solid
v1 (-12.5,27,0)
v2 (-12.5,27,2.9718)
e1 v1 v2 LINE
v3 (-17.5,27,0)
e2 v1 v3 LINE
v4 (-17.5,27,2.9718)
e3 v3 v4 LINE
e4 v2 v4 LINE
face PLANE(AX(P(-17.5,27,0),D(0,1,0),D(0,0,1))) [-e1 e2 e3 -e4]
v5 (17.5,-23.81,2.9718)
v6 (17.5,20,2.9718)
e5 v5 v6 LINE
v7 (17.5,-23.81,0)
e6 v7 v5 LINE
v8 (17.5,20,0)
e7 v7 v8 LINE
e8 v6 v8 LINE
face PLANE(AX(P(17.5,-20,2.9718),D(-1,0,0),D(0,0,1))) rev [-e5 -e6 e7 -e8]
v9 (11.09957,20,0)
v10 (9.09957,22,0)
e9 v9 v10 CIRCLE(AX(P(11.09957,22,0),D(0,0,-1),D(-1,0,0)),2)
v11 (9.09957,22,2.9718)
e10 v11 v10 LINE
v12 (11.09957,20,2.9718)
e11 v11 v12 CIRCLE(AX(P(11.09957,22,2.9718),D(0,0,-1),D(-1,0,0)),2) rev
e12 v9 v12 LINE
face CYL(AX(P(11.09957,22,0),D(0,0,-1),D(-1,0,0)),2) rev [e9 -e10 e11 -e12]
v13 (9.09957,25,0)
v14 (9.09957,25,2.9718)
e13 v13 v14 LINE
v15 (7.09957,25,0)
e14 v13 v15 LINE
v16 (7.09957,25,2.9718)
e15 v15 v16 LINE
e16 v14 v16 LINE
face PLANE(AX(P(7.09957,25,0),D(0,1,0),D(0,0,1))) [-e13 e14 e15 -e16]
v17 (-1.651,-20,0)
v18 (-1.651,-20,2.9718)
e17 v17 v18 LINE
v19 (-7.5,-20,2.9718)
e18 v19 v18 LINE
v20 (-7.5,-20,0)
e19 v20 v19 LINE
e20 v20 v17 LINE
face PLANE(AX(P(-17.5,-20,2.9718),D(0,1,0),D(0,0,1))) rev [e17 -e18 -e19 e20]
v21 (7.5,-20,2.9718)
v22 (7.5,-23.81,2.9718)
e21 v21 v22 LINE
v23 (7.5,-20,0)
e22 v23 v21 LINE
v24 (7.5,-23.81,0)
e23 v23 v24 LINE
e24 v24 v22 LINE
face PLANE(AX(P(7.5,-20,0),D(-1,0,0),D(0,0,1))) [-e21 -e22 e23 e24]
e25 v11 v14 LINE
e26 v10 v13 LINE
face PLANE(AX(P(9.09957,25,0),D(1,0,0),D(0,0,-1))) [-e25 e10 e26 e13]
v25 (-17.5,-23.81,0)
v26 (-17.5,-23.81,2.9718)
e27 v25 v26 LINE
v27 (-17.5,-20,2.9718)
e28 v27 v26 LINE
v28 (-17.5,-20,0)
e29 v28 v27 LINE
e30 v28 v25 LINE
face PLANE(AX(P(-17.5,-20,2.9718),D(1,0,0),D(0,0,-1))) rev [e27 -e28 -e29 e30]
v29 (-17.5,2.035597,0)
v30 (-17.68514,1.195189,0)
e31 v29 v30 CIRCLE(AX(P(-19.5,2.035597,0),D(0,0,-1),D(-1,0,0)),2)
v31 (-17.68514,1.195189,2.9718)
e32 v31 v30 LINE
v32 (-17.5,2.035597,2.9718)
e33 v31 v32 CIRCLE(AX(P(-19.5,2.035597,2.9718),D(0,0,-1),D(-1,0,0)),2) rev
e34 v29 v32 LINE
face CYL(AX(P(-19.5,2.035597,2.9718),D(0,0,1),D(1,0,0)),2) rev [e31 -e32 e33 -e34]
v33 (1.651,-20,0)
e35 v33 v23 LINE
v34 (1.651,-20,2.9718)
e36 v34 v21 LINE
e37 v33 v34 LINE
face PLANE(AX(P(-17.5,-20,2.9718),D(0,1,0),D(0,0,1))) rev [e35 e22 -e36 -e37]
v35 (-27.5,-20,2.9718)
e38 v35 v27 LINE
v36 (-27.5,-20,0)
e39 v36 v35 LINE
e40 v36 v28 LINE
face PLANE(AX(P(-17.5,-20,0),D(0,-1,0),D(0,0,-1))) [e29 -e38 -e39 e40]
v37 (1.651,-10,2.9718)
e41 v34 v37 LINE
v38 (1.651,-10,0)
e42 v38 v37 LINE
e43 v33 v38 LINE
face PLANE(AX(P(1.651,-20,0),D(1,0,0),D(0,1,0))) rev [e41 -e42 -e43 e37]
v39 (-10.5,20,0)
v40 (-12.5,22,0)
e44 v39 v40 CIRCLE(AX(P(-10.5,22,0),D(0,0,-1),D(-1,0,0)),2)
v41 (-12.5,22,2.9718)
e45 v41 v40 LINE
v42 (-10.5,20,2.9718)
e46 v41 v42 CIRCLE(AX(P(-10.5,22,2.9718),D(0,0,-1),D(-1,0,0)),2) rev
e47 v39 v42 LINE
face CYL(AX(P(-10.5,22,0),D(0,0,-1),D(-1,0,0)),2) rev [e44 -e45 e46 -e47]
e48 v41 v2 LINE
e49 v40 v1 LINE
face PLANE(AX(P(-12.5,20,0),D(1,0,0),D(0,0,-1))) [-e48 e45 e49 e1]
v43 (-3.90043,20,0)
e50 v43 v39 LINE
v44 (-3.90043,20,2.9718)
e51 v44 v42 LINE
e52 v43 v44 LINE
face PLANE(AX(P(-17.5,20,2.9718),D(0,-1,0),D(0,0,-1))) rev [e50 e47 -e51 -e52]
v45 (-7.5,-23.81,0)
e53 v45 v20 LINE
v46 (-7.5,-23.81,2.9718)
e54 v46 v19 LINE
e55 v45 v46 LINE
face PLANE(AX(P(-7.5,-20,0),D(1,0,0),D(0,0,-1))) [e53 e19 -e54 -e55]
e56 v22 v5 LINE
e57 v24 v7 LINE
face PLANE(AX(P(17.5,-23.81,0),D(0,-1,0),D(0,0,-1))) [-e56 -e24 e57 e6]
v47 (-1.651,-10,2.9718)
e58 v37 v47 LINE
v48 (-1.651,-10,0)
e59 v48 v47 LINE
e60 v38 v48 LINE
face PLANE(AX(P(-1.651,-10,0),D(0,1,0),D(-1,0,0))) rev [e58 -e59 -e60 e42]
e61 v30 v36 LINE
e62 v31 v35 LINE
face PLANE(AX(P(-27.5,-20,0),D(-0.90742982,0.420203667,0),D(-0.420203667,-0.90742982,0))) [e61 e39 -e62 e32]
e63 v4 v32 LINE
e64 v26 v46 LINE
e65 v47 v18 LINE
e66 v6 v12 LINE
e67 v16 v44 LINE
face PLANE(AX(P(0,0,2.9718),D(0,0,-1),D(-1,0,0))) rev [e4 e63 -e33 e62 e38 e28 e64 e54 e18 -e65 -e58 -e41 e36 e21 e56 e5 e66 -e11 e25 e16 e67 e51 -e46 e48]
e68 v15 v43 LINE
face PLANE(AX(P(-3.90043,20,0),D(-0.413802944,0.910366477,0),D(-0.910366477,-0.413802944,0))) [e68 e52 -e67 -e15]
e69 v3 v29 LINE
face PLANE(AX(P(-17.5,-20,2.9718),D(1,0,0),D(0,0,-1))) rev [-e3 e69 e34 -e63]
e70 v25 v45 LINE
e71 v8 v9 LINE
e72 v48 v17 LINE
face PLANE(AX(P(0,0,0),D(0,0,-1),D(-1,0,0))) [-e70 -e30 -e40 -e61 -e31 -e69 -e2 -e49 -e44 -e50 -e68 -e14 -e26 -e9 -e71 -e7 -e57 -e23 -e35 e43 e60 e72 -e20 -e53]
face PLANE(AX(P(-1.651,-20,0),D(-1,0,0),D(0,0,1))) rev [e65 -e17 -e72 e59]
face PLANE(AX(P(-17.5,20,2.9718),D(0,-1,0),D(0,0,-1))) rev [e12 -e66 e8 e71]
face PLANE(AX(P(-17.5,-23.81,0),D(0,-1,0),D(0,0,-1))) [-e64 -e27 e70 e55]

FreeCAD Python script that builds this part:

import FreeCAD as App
import Part
import Sketcher
Q = App.Units.Quantity


def edges_at(feature, points):
    """Names of the edges that pass closest to the given points."""
    edges = feature.Shape.Edges
    near = lambda p: min(range(len(edges)), key=lambda i: edges[i].distToShape(Part.Vertex(*p))[0])
    return sorted({f"Edge{near(p) + 1}" for p in points})


def add_polygon(sketch, points):
    """Adds a closed chain of lines whose ends are joined by coincident constraints."""
    first, n = sketch.GeometryCount, len(points)
    for a, b in zip(points, points[1:] + points[:1]):
        sketch.addGeometry(Part.LineSegment(App.Vector(*a, 0), App.Vector(*b, 0)), False)
    for i in range(n):
        sketch.addConstraint(Sketcher.Constraint("Coincident", first + i, 2, first + (i + 1) % n, 1))

doc = App.newDocument("Part")
body = doc.addObject("PartDesign::Body", "Body")

sketch1 = doc.addObject("Sketcher::SketchObject", "Sketch")
body.addObject(sketch1)
sketch1.AttachmentSupport = (doc.XY_Plane, [""])
sketch1.MapMode = "FlatFace"
add_polygon(sketch1, [(-18, 20), (-18, -20), (18, -20), (18, 20)])
sketch1.addConstraint(Sketcher.Constraint("Vertical", 0))
sketch1.addConstraint(Sketcher.Constraint("Horizontal", 1))
sketch1.addConstraint(Sketcher.Constraint("Vertical", 2))
sketch1.addConstraint(Sketcher.Constraint("Horizontal", 3))
sketch1.addConstraint(Sketcher.Constraint("Symmetric", 0, 2, 2, 2, -1, 1))
sketch1.addConstraint(Sketcher.Constraint("DistanceX", 1, 1, 1, 2, Q("35 mm")))
sketch1.addConstraint(Sketcher.Constraint("DistanceY", 0, 2, 0, 1, Q("40 mm")))
pad1 = doc.addObject("PartDesign::Pad", "Pad")
body.addObject(pad1)
pad1.Profile = sketch1
pad1.Length = 2.9718

sketch2 = doc.addObject("Sketcher::SketchObject", "Sketch001")
body.addObject(sketch2)
sketch2.AttachmentSupport = (doc.XY_Plane, [""])
sketch2.MapMode = "FlatFace"
sketch2.AttachmentOffset = App.Placement(App.Vector(0, 0, 2.9718), App.Rotation())
add_polygon(sketch2, [(7.1, 25), (-3.9, 20), (9.1, 20), (9.1, 25)])
add_polygon(sketch2, [(-17.5, 27), (-17.5, 20), (-12.5, 20), (-12.5, 27)])
add_polygon(sketch2, [(-17.5, -20), (-17.5, -23.8), (-7.5, -23.8), (-7.5, -20)])
add_polygon(sketch2, [(7.5, -20), (7.5, -23.8), (17.5, -23.8), (17.5, -20)])
sketch2.addConstraint(Sketcher.Constraint("Horizontal", 1))
sketch2.addConstraint(Sketcher.Constraint("Vertical", 2))
sketch2.addConstraint(Sketcher.Constraint("Horizontal", 3))
sketch2.addConstraint(Sketcher.Constraint("Vertical", 4))
sketch2.addConstraint(Sketcher.Constraint("Horizontal", 5))
sketch2.addConstraint(Sketcher.Constraint("Vertical", 6))
sketch2.addConstraint(Sketcher.Constraint("Horizontal", 7))
sketch2.addConstraint(Sketcher.Constraint("Vertical", 8))
sketch2.addConstraint(Sketcher.Constraint("Horizontal", 9))
sketch2.addConstraint(Sketcher.Constraint("Vertical", 10))
sketch2.addConstraint(Sketcher.Constraint("Horizontal", 11))
sketch2.addConstraint(Sketcher.Constraint("Vertical", 12))
sketch2.addConstraint(Sketcher.Constraint("Horizontal", 13))
sketch2.addConstraint(Sketcher.Constraint("Vertical", 14))
sketch2.addConstraint(Sketcher.Constraint("Horizontal", 15))
sketch2.addConstraint(Sketcher.Constraint("Symmetric", 4, 2, 14, 2, -1, 1))
sketch2.addConstraint(Sketcher.Constraint("Symmetric", 9, 2, 12, 2, -2))
sketch2.addConstraint(Sketcher.Constraint("Symmetric", 11, 2, 14, 2, -2))
sketch2.addConstraint(Sketcher.Constraint("Horizontal", 1, 2, 4, 2))
sketch2.addConstraint(Sketcher.Constraint("Equal", 7, 2))
sketch2.addConstraint(Sketcher.Constraint("DistanceX", 1, 1, 1, 2, Q("13 mm")))
sketch2.addConstraint(Sketcher.Constraint("DistanceX", 3, 2, 3, 1, Q("2 mm")))
sketch2.addConstraint(Sketcher.Constraint("DistanceX", 5, 1, 5, 2, Q("5 mm")))
sketch2.addConstraint(Sketcher.Constraint("DistanceX", 9, 1, 9, 2, Q("10 mm")))
sketch2.addConstraint(Sketcher.Constraint("DistanceY", 4, 2, 4, 1, Q("7 mm")))
sketch2.addConstraint(Sketcher.Constraint("DistanceY", -1, 1, 0, 2, Q("20 mm")))
sketch2.addConstraint(Sketcher.Constraint("DistanceX", 9, 2, 12, 2, Q("15 mm")))
sketch2.addConstraint(Sketcher.Constraint("DistanceY", 8, 2, 8, 1, Q("3.81 mm")))
sketch2.addConstraint(Sketcher.Constraint("DistanceX", 0, 2, -1, 1, Q("3.90043 mm")))
pad2 = doc.addObject("PartDesign::Pad", "Pad001")
body.addObject(pad2)
pad2.Profile = sketch2
pad2.Length = 2.9718
pad2.Reversed = True

sketch3 = doc.addObject("Sketcher::SketchObject", "Sketch002")
body.addObject(sketch3)
sketch3.AttachmentSupport = (doc.XY_Plane, [""])
sketch3.MapMode = "FlatFace"
sketch3.AttachmentOffset = App.Placement(App.Vector(0, 0, 2.9718), App.Rotation())
add_polygon(sketch3, [(-28, -20), (-18, -20), (-18, 2)])
sketch3.addConstraint(Sketcher.Constraint("Horizontal", 0))
sketch3.addConstraint(Sketcher.Constraint("Vertical", 1))
sketch3.addConstraint(Sketcher.Constraint("DistanceX", 0, 1, 0, 2, Q("10 mm")))
sketch3.addConstraint(Sketcher.Constraint("DistanceY", 0, 2, -1, 1, Q("20 mm")))
sketch3.addConstraint(Sketcher.Constraint("DistanceX", 0, 2, -1, 1, Q("17.5 mm")))
sketch3.addConstraint(Sketcher.Constraint("DistanceY", 1, 1, 1, 2, Q("21.595 mm")))
pad3 = doc.addObject("PartDesign::Pad", "Pad002")
body.addObject(pad3)
pad3.Profile = sketch3
pad3.Length = 2.9718
pad3.Reversed = True
doc.recompute()

fillet = doc.addObject("PartDesign::Fillet", "Fillet")
body.addObject(fillet)
fillet.Base = (pad3, edges_at(pad3, [(-12.5, 20, 1.486)]))
fillet.Radius = 2
doc.recompute()

fillet2 = doc.addObject("PartDesign::Fillet", "Fillet001")
body.addObject(fillet2)
fillet2.Base = (fillet, edges_at(fillet, [(9.1, 20, 1.486)]))
fillet2.Radius = 2
doc.recompute()

fillet3 = doc.addObject("PartDesign::Fillet", "Fillet002")
body.addObject(fillet3)
fillet3.Base = (fillet2, edges_at(fillet2, [(-17.5, 1.595, 1.486)]))
fillet3.Radius = 2

sketch4 = doc.addObject("Sketcher::SketchObject", "Sketch003")
body.addObject(sketch4)
sketch4.AttachmentSupport = (doc.XY_Plane, [""])
sketch4.MapMode = "FlatFace"
sketch4.AttachmentOffset = App.Placement(App.Vector(0, 0, 2.9718), App.Rotation())
add_polygon(sketch4, [(-1.7, -10), (-1.7, -20), (1.7, -20), (1.7, -10)])
sketch4.addConstraint(Sketcher.Constraint("Vertical", 0))
sketch4.addConstraint(Sketcher.Constraint("Horizontal", 1))
sketch4.addConstraint(Sketcher.Constraint("Vertical", 2))
sketch4.addConstraint(Sketcher.Constraint("Horizontal", 3))
sketch4.addConstraint(Sketcher.Constraint("DistanceY", 0, 2, 0, 1, Q("10 mm")))
sketch4.addConstraint(Sketcher.Constraint("DistanceY", 0, 2, -1, 1, Q("20 mm")))
sketch4.addConstraint(Sketcher.Constraint("DistanceX", 1, 1, 1, 2, Q("3.302 mm")))
sketch4.addConstraint(Sketcher.Constraint("DistanceX", 0, 2, -1, 1, Q("1.651 mm")))
pocket1 = doc.addObject("PartDesign::Pocket", "Pocket")
body.addObject(pocket1)
pocket1.Profile = sketch4
pocket1.Type = "ThroughAll"

doc.recompute()
